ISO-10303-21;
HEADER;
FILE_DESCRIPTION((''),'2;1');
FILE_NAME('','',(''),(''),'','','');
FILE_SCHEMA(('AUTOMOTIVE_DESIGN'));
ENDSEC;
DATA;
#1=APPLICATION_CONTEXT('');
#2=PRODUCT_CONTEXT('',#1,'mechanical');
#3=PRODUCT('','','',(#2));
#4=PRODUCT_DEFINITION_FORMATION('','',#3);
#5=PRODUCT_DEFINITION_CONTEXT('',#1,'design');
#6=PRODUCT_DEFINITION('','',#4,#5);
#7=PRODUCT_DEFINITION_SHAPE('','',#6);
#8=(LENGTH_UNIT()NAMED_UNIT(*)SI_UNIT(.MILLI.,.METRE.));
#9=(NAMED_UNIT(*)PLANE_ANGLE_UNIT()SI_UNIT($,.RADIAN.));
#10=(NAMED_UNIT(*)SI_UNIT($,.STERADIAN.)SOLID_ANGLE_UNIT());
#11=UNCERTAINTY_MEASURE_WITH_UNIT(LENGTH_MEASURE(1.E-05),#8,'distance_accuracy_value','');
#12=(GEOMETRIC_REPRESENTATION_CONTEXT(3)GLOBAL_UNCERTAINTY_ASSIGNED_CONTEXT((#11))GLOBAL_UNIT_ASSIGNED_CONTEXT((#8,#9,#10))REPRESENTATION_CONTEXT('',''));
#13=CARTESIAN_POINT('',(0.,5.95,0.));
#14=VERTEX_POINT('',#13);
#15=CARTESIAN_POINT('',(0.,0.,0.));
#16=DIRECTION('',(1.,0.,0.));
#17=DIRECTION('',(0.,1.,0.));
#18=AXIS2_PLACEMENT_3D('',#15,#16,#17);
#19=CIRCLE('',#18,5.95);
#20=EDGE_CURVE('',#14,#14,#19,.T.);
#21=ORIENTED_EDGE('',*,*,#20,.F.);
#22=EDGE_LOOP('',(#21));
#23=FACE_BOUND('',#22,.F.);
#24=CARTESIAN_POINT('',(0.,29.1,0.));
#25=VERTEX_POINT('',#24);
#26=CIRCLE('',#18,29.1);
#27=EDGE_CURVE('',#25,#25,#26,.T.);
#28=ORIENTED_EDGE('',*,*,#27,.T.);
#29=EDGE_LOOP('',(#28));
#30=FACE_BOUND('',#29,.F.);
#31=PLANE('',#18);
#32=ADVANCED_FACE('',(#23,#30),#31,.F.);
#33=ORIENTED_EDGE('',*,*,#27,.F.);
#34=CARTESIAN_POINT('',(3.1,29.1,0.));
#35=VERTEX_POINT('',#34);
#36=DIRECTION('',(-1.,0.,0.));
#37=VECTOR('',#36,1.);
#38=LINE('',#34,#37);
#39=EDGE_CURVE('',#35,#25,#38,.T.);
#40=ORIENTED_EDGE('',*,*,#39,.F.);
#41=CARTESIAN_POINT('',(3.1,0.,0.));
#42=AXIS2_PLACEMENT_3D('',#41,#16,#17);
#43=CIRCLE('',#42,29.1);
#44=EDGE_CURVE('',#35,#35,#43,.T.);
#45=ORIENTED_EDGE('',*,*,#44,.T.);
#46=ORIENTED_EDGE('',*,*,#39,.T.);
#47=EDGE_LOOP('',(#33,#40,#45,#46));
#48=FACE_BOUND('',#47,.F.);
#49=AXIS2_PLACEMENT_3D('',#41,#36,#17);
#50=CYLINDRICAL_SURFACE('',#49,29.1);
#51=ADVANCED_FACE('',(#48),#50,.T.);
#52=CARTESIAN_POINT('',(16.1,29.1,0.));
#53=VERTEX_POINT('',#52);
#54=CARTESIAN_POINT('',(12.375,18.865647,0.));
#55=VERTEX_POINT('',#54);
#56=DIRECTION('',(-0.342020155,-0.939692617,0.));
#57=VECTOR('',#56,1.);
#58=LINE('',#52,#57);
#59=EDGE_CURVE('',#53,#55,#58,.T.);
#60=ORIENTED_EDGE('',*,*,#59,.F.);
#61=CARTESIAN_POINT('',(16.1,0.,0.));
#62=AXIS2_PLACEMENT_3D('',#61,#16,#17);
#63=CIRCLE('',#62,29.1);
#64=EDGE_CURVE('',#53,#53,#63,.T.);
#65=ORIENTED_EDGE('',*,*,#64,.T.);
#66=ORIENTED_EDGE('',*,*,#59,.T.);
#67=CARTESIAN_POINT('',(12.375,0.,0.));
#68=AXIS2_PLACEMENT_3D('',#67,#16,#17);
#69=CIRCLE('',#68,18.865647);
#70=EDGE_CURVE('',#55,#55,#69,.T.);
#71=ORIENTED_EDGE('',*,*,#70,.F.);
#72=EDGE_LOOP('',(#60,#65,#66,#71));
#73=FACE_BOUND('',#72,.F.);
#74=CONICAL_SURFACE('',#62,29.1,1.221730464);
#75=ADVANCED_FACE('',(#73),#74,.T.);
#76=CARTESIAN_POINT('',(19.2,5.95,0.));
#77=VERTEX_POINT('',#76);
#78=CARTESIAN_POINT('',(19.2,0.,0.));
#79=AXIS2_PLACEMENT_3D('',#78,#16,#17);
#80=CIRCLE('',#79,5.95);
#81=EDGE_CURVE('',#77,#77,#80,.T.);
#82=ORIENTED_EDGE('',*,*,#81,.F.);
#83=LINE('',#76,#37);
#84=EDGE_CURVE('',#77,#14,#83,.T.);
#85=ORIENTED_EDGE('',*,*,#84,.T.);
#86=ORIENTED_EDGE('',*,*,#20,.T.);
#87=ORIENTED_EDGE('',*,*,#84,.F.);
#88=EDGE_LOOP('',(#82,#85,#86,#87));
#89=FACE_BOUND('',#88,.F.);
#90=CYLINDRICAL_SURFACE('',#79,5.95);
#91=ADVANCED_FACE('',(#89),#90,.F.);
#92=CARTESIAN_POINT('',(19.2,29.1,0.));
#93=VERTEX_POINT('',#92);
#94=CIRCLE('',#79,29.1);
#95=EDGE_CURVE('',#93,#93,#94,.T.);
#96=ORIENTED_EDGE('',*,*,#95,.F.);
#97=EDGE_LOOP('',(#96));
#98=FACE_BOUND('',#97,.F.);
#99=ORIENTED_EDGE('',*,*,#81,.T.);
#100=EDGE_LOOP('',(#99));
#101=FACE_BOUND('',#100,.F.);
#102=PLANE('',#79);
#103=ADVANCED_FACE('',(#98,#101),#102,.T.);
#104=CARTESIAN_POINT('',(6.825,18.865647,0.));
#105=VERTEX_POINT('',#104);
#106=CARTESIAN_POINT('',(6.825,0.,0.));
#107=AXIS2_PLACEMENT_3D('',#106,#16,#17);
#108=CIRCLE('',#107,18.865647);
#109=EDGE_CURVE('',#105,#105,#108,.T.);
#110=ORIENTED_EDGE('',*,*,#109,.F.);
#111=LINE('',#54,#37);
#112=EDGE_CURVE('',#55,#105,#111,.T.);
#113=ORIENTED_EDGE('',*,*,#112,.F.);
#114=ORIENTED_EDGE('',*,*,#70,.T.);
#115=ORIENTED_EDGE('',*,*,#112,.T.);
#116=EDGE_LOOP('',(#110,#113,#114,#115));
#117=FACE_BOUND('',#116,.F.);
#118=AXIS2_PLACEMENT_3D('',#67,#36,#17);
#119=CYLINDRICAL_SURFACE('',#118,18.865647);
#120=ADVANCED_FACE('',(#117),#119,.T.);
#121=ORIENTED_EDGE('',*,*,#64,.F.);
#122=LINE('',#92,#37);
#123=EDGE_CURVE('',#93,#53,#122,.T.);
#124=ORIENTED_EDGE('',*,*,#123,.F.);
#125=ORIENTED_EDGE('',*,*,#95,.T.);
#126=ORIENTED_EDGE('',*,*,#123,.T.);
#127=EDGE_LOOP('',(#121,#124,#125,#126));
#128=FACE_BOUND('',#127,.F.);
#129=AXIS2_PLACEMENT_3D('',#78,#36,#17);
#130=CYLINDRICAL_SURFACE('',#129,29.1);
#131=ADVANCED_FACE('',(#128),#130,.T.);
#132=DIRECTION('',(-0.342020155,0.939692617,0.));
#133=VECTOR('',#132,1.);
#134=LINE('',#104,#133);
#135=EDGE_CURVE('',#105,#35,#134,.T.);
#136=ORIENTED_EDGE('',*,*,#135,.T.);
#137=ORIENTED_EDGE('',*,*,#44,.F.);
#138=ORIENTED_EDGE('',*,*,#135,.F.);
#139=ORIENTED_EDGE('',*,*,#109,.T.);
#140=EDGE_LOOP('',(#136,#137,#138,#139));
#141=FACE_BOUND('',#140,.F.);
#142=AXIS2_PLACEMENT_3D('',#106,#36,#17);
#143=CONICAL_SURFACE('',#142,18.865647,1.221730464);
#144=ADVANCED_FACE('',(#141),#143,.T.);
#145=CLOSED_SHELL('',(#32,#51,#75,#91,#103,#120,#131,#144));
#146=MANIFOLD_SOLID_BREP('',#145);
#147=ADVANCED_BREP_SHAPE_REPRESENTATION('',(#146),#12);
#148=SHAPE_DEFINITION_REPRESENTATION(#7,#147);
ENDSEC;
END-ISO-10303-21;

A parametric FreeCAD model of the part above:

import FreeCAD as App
import Part
import Sketcher
Q = App.Units.Quantity

doc = App.newDocument("Part")
params = doc.addObject("Spreadsheet::Sheet", "Params")
for row, (alias, value) in enumerate([
    ("sketch1_width", "19.2 mm"),
    ("sketch1_width2", "3.1 mm"),
    ("sketch1_height", "29.1 mm"),
    ("sketch1_width3", "5.55 mm"),
    ("revolution_angle", "360 deg"),
    ("sketch2_diameter", "11.9 mm"),
], start=1):
    params.set(f"A{row}", alias)
    params.set(f"B{row}", "=" + value)
    params.setAlias(f"B{row}", alias)

body = doc.addObject("PartDesign::Body", "Body")

# Sketch on XY plane
sketch1 = body.newObject("Sketcher::SketchObject", "Sketch")
sketch1.AttachmentSupport = (doc.getObject("XY_Plane"), [""])
sketch1.MapMode = "FlatFace"
sketch1.addGeometry([
    Part.LineSegment(App.Vector(0, 29.1, 0), App.Vector(0, 0, 0)),  # 0
    Part.LineSegment(App.Vector(0, 0, 0), App.Vector(19.2, 0, 0)),  # 1
    Part.LineSegment(App.Vector(19.2, 0, 0), App.Vector(19.2, 29.1, 0)),  # 2
    Part.LineSegment(App.Vector(19.2, 29.1, 0), App.Vector(16.1, 29.1, 0)),  # 3
    Part.LineSegment(App.Vector(16.1, 29.1, 0), App.Vector(12.4, 18.9, 0)),  # 4
    Part.LineSegment(App.Vector(12.4, 18.9, 0), App.Vector(6.8, 18.9, 0)),  # 5
    Part.LineSegment(App.Vector(6.8, 18.9, 0), App.Vector(3.1, 29.1, 0)),  # 6
    Part.LineSegment(App.Vector(3.1, 29.1, 0), App.Vector(0, 29.1, 0)),  # 7
], False)
sketch1.addConstraint([
    Sketcher.Constraint("Coincident", 0, 2, 1, 1),
    Sketcher.Constraint("Coincident", 1, 2, 2, 1),
    Sketcher.Constraint("Coincident", 2, 2, 3, 1),
    Sketcher.Constraint("Coincident", 3, 2, 4, 1),
    Sketcher.Constraint("Coincident", 4, 2, 5, 1),
    Sketcher.Constraint("Coincident", 5, 2, 6, 1),
    Sketcher.Constraint("Coincident", 6, 2, 7, 1),
    Sketcher.Constraint("Coincident", 7, 2, 0, 1),
    Sketcher.Constraint("Vertical", 0),
    Sketcher.Constraint("Horizontal", 1),
    Sketcher.Constraint("Vertical", 2),
    Sketcher.Constraint("Horizontal", 3),
    Sketcher.Constraint("Horizontal", 5),
    Sketcher.Constraint("Horizontal", 7),
    Sketcher.Constraint("Coincident", 0, 2, -1, 1),
    Sketcher.Constraint("Horizontal", 3, 2, 6, 2),
    Sketcher.Constraint("Equal", 3, 7),
    Sketcher.Constraint("Equal", 4, 6),
    Sketcher.Constraint("Angle", 4, Q("-110.000001 deg")),
    Sketcher.Constraint("DistanceX", 1, 1, 1, 2, 19.2),
    Sketcher.Constraint("DistanceX", 3, 2, 3, 1, 3.1),
    Sketcher.Constraint("DistanceY", 0, 2, 0, 1, 29.1),
    Sketcher.Constraint("DistanceX", 5, 2, 5, 1, 5.55),
])
sketch1.setExpression("Constraints[19]", "Params.sketch1_width")
sketch1.setExpression("Constraints[20]", "Params.sketch1_width2")
sketch1.setExpression("Constraints[21]", "Params.sketch1_height")
sketch1.setExpression("Constraints[22]", "Params.sketch1_width3")
revolution = body.newObject("PartDesign::Revolution", "Revolution")
revolution.Profile = sketch1
revolution.ReferenceAxis = (sketch1, ["H_Axis"])
revolution.setExpression("Angle", "Params.revolution_angle")

# Sketch on YZ plane
sketch2 = body.newObject("Sketcher::SketchObject", "Sketch001")
sketch2.AttachmentSupport = (doc.getObject("YZ_Plane"), [""])
sketch2.MapMode = "FlatFace"
sketch2.AttachmentOffset = App.Placement(App.Vector(0, 0, 19.2), App.Rotation())
sketch2.addGeometry(Part.Circle(App.Vector(0, 0, 0), App.Vector(0, 0, 1), 6), False)
sketch2.addConstraint([
    Sketcher.Constraint("Coincident", 0, 3, -1, 1),
    Sketcher.Constraint("Diameter", 0, 11.9),
])
sketch2.setExpression("Constraints[1]", "Params.sketch2_diameter")
pocket1 = body.newObject("PartDesign::Pocket", "Pocket")
pocket1.Profile = sketch2
pocket1.Type = "ThroughAll"

doc.recompute()
